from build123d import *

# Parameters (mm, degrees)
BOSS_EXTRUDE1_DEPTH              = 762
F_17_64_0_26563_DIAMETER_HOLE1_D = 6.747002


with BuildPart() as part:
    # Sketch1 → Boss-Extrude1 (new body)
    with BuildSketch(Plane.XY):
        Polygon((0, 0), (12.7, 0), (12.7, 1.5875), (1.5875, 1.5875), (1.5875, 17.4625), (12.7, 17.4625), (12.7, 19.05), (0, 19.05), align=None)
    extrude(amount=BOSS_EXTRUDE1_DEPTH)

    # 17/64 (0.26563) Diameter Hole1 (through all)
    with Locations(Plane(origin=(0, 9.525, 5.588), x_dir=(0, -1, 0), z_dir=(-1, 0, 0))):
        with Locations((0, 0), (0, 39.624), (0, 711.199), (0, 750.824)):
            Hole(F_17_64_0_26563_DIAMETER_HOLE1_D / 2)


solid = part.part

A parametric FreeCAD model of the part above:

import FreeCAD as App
import Part
import Sketcher
Q = App.Units.Quantity


def add_polygon(sketch, points):
    """Adds a closed chain of lines whose ends are joined by coincident constraints."""
    first, n = sketch.GeometryCount, len(points)
    for a, b in zip(points, points[1:] + points[:1]):
        sketch.addGeometry(Part.LineSegment(App.Vector(*a, 0), App.Vector(*b, 0)), False)
    for i in range(n):
        sketch.addConstraint(Sketcher.Constraint("Coincident", first + i, 2, first + (i + 1) % n, 1))

doc = App.newDocument("Part")
params = doc.addObject("Spreadsheet::Sheet", "Params")
for row, (alias, value) in enumerate([
    ("sketch1_width", "0.5 in"),
    ("sketch1_height", "0.75 in"),
    ("sketch1_width2", "0.4375 in"),
    ("sketch1_height2", "0.0625 in"),
    ("pad1_length", "30 in"),
    ("hole_diameter", "6.747002 mm"),
], start=1):
    params.set(f"A{row}", alias)
    params.set(f"B{row}", "=" + value)
    params.setAlias(f"B{row}", alias)

body = doc.addObject("PartDesign::Body", "Body")

# Sketch on XY plane
sketch1 = body.newObject("Sketcher::SketchObject", "Sketch")
sketch1.AttachmentSupport = (doc.getObject("XY_Plane"), [""])
sketch1.MapMode = "FlatFace"
add_polygon(sketch1, [(0, 0), (12.7, 0), (12.7, 1.6), (1.6, 1.6), (1.6, 17.5), (12.7, 17.5), (12.7, 19.1), (0, 19.1)])  # lines 0-7
sketch1.addConstraint([
    Sketcher.Constraint("Horizontal", 0),
    Sketcher.Constraint("Vertical", 1),
    Sketcher.Constraint("Horizontal", 2),
    Sketcher.Constraint("Vertical", 3),
    Sketcher.Constraint("Horizontal", 4),
    Sketcher.Constraint("Vertical", 5),
    Sketcher.Constraint("Horizontal", 6),
    Sketcher.Constraint("Vertical", 7),
    Sketcher.Constraint("Coincident", 7, 2, -1, 1),
    Sketcher.Constraint("Vertical", 1, 2, 4, 2),
    Sketcher.Constraint("Equal", 1, 5),
    Sketcher.Constraint("DistanceX", 0, 1, 0, 2, Q("0.5 in")),
    Sketcher.Constraint("DistanceY", 7, 2, 7, 1, Q("0.75 in")),
    Sketcher.Constraint("DistanceX", 2, 2, 2, 1, Q("0.4375 in")),
    Sketcher.Constraint("DistanceY", 1, 1, 1, 2, Q("0.0625 in")),
])
sketch1.setExpression("Constraints[19]", "Params.sketch1_width")
sketch1.setExpression("Constraints[20]", "Params.sketch1_height")
sketch1.setExpression("Constraints[21]", "Params.sketch1_width2")
sketch1.setExpression("Constraints[22]", "Params.sketch1_height2")
pad1 = body.newObject("PartDesign::Pad", "Pad")
pad1.Profile = sketch1
pad1.setExpression("Length", "Params.pad1_length")

# Sketch on YZ plane
sketch2 = body.newObject("Sketcher::SketchObject", "Sketch001")
sketch2.AttachmentSupport = (doc.getObject("YZ_Plane"), [""])
sketch2.MapMode = "FlatFace"
sketch2.addGeometry([
    Part.Circle(App.Vector(9.5, 5.6, 0), App.Vector(0, 0, 1), 3.4),
    Part.Circle(App.Vector(9.5, 45.2, 0), App.Vector(0, 0, 1), 3.4),
    Part.Circle(App.Vector(9.5, 716.8, 0), App.Vector(0, 0, 1), 3.4),
    Part.Circle(App.Vector(9.5, 756.4, 0), App.Vector(0, 0, 1), 3.4),
], False)
sketch2.addConstraint([
    Sketcher.Constraint("Equal", 0, 1),
    Sketcher.Constraint("Equal", 1, 2),
    Sketcher.Constraint("Equal", 2, 3),
    Sketcher.Constraint("Vertical", 0, 3, 1, 3),
    Sketcher.Constraint("Vertical", 1, 3, 2, 3),
    Sketcher.Constraint("Vertical", 2, 3, 3, 3),
    Sketcher.Constraint("DistanceY", 1, 3, 3, 3, Q("28 in")),
    Sketcher.Constraint("DistanceY", -1, 1, 0, 3, Q("0.22 in")),
    Sketcher.Constraint("DistanceY", -1, 1, 1, 3, Q("1.78 in")),
    Sketcher.Constraint("DistanceX", -1, 1, 0, 3, Q("0.375 in")),
    Sketcher.Constraint("Diameter", 0, 6.747002),
    Sketcher.Constraint("DistanceY", -1, 1, 2, 3, 716.787),
])
doc.recompute()
hole = body.newObject("PartDesign::Hole", "Hole")
hole.Profile = sketch2
hole.ThreadType = "None"
hole.setExpression("Diameter", "Params.hole_diameter")
hole.DepthType = "ThroughAll"
hole.Reversed = True

doc.recompute()
